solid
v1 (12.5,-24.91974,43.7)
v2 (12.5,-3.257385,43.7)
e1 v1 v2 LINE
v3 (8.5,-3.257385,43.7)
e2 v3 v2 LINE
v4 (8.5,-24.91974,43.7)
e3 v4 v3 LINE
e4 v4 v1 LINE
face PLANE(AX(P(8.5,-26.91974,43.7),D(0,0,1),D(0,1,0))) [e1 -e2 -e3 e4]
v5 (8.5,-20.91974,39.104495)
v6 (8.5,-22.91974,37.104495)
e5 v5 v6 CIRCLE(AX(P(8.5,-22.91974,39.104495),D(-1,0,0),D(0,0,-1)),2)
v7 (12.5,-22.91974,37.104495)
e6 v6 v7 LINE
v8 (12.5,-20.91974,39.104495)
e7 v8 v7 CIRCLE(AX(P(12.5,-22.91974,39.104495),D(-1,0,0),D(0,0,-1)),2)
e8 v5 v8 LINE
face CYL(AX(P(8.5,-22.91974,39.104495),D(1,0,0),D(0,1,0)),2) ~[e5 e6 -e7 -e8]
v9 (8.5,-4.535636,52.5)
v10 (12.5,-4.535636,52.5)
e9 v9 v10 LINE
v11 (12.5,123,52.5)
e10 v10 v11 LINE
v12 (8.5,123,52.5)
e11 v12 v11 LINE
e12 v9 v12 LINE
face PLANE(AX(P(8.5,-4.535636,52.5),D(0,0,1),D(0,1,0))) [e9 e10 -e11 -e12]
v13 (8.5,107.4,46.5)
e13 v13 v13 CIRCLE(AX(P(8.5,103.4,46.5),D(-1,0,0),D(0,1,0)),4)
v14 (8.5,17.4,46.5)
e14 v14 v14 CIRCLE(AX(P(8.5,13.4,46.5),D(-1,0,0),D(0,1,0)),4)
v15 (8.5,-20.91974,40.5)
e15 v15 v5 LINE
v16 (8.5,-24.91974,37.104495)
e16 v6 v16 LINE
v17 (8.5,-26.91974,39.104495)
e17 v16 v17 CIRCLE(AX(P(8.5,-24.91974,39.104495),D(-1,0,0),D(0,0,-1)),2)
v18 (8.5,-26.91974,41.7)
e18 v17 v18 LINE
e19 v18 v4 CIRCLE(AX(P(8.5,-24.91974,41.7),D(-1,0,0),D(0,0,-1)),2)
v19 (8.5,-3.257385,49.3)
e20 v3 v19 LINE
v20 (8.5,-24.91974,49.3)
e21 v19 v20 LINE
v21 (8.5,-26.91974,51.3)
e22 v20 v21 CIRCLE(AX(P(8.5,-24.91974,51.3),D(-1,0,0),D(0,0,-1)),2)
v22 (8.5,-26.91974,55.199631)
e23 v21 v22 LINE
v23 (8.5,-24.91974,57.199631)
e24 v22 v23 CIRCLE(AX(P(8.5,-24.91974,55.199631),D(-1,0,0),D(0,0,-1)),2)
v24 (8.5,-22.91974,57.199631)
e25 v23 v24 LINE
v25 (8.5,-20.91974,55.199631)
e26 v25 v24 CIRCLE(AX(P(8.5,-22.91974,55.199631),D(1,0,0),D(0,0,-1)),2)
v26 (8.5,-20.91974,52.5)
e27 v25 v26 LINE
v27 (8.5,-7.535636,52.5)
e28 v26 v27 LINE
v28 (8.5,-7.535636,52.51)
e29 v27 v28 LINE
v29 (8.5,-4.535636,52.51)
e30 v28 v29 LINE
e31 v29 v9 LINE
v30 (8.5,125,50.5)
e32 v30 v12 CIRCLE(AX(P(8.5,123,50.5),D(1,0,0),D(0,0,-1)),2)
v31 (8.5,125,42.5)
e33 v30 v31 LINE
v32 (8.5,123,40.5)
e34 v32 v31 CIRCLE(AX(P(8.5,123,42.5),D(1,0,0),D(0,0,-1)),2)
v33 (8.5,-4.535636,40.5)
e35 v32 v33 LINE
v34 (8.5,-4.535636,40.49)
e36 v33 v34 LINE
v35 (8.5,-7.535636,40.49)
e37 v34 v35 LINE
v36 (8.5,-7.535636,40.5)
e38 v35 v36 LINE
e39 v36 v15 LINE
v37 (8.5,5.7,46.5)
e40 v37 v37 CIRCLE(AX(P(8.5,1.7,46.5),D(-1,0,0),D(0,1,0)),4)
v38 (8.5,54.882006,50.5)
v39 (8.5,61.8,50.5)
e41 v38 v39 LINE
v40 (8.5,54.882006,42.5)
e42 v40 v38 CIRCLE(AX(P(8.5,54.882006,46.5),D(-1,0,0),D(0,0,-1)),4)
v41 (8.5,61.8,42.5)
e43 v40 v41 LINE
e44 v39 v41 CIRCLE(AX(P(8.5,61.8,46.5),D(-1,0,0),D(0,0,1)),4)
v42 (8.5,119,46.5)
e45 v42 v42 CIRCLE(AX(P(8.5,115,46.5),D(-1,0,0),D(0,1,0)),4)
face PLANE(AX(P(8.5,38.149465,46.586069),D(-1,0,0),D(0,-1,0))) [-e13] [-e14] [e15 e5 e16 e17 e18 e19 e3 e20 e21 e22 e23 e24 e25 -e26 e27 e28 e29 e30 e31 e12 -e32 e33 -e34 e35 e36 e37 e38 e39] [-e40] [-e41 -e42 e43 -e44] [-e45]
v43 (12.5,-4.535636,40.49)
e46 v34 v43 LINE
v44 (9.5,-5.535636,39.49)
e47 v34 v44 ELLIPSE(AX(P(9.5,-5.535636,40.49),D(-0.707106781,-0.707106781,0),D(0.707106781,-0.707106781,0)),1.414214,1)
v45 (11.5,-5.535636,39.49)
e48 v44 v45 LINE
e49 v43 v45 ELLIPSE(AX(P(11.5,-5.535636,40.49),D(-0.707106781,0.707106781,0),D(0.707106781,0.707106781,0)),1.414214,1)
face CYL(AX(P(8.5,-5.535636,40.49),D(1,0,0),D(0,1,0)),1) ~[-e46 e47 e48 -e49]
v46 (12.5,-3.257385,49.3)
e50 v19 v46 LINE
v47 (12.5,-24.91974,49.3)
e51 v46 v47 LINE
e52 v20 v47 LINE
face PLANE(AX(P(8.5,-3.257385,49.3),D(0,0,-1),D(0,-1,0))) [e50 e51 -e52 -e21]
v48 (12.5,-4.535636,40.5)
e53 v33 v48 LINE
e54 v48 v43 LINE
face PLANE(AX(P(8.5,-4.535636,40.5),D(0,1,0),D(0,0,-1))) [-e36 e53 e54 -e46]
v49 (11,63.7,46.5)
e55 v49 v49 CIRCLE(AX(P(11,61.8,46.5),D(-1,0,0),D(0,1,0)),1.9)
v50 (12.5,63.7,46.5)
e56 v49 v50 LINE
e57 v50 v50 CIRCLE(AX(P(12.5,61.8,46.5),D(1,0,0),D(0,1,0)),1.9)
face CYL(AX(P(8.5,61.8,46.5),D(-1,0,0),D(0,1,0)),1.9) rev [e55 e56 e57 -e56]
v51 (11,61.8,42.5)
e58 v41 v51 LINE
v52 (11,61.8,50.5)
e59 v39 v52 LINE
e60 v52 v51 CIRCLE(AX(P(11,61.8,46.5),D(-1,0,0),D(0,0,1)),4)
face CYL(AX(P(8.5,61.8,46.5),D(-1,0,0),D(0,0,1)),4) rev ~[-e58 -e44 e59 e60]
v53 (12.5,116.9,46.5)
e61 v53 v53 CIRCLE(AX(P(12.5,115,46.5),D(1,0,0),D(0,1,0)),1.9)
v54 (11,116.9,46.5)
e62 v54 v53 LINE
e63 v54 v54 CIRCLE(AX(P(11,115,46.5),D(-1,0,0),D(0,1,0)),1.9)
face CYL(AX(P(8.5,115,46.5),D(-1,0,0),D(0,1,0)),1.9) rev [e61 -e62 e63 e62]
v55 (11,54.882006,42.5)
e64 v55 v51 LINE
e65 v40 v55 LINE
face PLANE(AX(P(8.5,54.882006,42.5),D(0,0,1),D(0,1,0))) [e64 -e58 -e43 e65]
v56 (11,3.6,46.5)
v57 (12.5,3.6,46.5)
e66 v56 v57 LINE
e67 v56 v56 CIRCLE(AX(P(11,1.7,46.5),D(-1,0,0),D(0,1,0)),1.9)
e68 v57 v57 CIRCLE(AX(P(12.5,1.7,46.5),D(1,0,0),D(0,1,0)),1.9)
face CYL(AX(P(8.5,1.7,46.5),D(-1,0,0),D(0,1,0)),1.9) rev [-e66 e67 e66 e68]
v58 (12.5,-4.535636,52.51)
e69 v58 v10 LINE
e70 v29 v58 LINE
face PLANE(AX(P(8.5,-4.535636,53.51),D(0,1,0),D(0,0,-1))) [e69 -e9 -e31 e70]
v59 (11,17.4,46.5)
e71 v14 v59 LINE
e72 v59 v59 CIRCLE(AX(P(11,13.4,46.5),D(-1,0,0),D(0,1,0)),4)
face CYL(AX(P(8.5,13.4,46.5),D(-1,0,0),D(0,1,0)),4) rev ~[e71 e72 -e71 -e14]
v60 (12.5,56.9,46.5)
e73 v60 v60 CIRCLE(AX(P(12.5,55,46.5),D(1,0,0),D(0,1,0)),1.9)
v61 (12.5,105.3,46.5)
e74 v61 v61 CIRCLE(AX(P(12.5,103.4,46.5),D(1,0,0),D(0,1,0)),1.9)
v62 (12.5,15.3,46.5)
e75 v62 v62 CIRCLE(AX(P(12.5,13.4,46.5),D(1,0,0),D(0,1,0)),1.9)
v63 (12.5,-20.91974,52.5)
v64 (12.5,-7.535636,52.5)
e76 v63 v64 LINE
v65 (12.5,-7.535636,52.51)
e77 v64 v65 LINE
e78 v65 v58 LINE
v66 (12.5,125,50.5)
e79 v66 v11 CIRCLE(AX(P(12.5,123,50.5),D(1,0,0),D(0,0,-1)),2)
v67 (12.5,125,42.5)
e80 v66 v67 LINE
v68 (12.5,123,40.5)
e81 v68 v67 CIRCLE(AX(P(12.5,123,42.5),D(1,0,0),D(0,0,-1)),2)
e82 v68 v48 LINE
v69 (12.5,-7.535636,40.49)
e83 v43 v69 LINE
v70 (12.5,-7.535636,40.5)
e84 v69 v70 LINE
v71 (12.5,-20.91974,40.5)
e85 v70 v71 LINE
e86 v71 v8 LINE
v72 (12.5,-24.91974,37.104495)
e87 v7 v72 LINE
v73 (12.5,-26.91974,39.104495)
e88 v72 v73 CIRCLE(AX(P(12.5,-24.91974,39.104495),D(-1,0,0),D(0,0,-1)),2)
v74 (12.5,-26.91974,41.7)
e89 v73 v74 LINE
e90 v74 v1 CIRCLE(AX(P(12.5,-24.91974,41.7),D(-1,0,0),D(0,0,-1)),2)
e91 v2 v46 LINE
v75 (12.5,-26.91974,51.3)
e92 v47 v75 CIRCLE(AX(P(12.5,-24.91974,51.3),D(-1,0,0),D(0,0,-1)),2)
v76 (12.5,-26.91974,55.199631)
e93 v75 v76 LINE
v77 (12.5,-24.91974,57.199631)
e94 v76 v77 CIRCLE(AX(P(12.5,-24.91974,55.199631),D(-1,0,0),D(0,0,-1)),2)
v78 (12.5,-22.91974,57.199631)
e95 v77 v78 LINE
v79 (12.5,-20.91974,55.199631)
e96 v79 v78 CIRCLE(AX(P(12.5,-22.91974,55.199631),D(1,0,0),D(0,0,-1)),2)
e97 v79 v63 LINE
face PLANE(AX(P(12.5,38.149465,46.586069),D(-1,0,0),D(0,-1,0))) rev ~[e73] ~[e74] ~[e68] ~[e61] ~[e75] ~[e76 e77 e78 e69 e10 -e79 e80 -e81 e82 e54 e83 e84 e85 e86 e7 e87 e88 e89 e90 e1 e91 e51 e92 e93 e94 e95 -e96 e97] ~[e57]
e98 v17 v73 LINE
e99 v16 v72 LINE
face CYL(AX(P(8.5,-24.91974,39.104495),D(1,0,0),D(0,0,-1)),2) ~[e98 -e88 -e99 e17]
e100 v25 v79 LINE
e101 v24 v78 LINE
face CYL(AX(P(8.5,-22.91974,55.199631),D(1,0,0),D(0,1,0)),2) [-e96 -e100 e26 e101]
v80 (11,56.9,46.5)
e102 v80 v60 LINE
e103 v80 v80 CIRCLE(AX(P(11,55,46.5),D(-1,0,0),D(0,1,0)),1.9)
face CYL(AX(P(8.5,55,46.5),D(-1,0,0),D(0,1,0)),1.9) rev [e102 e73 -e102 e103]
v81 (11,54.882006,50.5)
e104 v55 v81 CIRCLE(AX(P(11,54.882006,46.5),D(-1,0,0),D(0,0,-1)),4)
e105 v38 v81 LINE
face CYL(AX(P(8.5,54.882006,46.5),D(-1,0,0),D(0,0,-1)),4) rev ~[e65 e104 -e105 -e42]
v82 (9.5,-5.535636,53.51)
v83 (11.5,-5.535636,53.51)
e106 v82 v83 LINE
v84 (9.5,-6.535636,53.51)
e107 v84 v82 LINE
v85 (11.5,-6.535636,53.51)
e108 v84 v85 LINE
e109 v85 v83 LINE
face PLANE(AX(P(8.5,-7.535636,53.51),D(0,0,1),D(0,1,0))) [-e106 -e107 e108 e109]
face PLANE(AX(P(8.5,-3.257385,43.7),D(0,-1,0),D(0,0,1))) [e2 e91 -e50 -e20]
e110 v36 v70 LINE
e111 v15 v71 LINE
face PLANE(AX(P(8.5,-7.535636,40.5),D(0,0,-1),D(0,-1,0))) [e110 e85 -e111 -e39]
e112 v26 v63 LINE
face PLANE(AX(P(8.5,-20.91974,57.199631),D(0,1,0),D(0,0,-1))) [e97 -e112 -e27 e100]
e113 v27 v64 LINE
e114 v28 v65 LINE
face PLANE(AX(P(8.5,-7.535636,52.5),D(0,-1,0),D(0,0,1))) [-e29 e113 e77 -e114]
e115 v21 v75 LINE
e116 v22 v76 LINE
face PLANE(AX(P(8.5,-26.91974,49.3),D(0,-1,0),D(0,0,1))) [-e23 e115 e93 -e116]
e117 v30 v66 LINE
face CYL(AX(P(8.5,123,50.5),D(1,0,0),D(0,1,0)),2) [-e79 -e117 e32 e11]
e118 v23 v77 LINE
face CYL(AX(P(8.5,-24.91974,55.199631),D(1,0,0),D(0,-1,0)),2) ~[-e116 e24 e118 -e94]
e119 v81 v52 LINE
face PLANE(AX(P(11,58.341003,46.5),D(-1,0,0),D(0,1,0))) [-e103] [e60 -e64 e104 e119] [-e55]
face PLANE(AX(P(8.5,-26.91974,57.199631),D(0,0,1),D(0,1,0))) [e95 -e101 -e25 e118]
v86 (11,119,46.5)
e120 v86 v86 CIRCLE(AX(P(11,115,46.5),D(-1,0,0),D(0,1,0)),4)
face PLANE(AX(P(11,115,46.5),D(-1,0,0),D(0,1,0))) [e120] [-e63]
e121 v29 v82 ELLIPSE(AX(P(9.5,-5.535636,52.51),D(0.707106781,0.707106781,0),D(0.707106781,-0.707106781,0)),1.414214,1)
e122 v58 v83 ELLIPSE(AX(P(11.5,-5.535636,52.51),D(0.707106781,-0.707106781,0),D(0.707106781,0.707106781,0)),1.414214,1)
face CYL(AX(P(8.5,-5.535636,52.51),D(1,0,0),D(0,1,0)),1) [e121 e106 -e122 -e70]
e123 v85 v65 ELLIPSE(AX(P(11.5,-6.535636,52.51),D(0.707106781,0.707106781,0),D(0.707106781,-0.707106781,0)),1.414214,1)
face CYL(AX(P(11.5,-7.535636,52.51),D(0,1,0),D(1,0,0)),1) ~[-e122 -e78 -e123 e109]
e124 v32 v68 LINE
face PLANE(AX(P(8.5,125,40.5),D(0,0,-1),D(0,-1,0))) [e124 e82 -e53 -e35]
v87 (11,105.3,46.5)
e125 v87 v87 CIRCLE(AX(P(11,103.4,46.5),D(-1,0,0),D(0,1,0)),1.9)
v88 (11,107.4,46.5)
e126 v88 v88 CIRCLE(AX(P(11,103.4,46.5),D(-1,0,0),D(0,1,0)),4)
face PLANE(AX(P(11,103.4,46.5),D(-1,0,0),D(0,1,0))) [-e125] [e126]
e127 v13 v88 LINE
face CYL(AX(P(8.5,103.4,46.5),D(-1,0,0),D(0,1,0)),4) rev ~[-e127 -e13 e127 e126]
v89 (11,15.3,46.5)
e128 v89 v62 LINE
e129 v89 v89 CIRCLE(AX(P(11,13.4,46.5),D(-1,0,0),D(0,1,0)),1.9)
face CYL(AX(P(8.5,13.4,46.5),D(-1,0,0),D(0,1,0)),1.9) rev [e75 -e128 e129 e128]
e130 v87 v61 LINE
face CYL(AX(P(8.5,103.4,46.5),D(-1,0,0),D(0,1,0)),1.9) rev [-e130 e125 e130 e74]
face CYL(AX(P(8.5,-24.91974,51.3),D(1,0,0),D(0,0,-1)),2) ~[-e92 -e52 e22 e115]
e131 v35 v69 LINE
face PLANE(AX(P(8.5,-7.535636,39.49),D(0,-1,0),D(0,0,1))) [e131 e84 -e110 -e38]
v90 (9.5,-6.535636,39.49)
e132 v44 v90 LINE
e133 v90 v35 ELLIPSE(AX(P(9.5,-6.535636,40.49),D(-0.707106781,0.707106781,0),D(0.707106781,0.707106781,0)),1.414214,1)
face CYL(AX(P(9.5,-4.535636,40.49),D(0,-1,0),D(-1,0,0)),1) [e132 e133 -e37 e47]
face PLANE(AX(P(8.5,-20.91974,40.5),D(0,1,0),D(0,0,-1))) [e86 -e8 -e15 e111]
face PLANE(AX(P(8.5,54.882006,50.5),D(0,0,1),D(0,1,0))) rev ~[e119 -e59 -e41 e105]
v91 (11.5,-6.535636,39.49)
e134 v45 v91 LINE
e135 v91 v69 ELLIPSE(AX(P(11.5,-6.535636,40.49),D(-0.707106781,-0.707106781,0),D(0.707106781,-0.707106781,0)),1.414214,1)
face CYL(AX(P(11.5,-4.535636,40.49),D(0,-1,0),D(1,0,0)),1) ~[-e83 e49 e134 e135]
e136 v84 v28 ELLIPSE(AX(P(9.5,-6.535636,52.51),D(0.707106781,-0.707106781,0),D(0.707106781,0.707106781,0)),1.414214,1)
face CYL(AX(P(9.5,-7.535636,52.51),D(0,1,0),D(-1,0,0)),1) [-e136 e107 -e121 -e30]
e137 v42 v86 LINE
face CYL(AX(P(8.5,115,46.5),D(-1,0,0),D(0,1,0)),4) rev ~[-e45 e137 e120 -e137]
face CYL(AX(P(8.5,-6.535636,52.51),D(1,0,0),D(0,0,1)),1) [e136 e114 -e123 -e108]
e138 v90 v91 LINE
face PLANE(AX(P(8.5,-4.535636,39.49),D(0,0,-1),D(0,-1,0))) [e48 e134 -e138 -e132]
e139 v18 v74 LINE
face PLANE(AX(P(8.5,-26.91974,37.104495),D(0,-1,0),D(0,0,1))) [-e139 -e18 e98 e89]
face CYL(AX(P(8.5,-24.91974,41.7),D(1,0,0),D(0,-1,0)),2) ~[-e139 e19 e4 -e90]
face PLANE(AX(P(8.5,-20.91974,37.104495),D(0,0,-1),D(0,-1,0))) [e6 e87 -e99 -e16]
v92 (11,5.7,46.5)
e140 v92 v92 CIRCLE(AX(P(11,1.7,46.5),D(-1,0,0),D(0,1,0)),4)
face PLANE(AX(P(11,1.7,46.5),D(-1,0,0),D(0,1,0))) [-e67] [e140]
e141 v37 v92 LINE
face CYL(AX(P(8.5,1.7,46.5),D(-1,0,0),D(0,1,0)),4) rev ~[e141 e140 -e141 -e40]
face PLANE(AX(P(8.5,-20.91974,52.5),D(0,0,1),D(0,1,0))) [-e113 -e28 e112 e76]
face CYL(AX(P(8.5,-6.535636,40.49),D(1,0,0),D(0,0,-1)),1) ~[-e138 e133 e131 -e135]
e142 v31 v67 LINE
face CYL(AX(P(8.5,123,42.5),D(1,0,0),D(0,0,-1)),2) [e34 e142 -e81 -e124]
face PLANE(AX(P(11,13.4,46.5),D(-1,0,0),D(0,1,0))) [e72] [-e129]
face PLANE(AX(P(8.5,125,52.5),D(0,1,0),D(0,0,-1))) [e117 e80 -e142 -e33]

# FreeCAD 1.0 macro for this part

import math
import FreeCAD as App
import Part
import Sketcher

V = App.Vector


def edges_at(feature, points):
    """Names of the edges that pass closest to the given points."""
    edges = feature.Shape.Edges
    near = lambda p: min(range(len(edges)), key=lambda i: edges[i].distToShape(Part.Vertex(*p))[0])
    return sorted({f"Edge{near(p) + 1}" for p in points})

doc = App.newDocument("Part")
body = doc.addObject("PartDesign::Body", "Body")

# Sketch on XZ plane
sketch1 = body.newObject("Sketcher::SketchObject", "Sketch")
sketch1.AttachmentSupport = (doc.getObject("XZ_Plane"), [""])
sketch1.MapMode = "FlatFace"
sketch1.addGeometry([
    Part.LineSegment(V(-125.5, 0, 0), V(4, 0, 0)),  # 0
    Part.LineSegment(V(4, 0, 0), V(4, 12, 0)),  # 1
    Part.LineSegment(V(4, 12, 0), V(-125.5, 12, 0)),  # 2
    Part.LineSegment(V(-125.5, 12, 0), V(-125.5, 13, 0)),  # 3
    Part.LineSegment(V(-125.5, 13, 0), V(-128.5, 13, 0)),  # 4
    Part.LineSegment(V(-128.5, 13, 0), V(-128.5, 12, 0)),  # 5
    Part.LineSegment(V(-128.5, 12, 0), V(-141.9, 12, 0)),  # 6
    Part.LineSegment(V(-141.9, 12, 0), V(-141.9, 16.7, 0)),  # 7
    Part.LineSegment(V(-141.9, 16.7, 0), V(-147.9, 16.7, 0)),  # 8
    Part.LineSegment(V(-147.9, 16.7, 0), V(-147.9, 8.8, 0)),  # 9
    Part.LineSegment(V(-147.9, 8.8, 0), V(-124.3, 8.8, 0)),  # 10
    Part.LineSegment(V(-124.3, 8.8, 0), V(-124.3, 3.2, 0)),  # 11
    Part.LineSegment(V(-124.3, 3.2, 0), V(-147.9, 3.2, 0)),  # 12
    Part.LineSegment(V(-147.9, 3.2, 0), V(-147.9, -3.4, 0)),  # 13
    Part.LineSegment(V(-147.9, -3.4, 0), V(-141.9, -3.4, 0)),  # 14
    Part.LineSegment(V(-141.9, -3.4, 0), V(-141.9, 0, 0)),  # 15
    Part.LineSegment(V(-141.9, 0, 0), V(-128.5, 0, 0)),  # 16
    Part.LineSegment(V(-128.5, 0, 0), V(-128.5, -1, 0)),  # 17
    Part.LineSegment(V(-128.5, -1, 0), V(-125.5, -1, 0)),  # 18
    Part.LineSegment(V(-125.5, -1, 0), V(-125.5, 0, 0)),  # 19
    Part.Circle(V(-6, 6, 0), V(0, 0, 1), 1.9),  # 20
    Part.Circle(V(-17.6, 6, 0), V(0, 0, 1), 1.9),  # 21
    Part.Circle(V(-59.2, 6, 0), V(0, 0, 1), 1.9),  # 22
    Part.Circle(V(-66, 6, 0), V(0, 0, 1), 1.9),  # 23
    Part.Circle(V(-107.6, 6, 0), V(0, 0, 1), 1.9),  # 24
    Part.Circle(V(-119.3, 6, 0), V(0, 0, 1), 1.9),  # 25
], False)
sketch1.addConstraint([
    Sketcher.Constraint("Coincident", 0, 2, 1, 1),
    Sketcher.Constraint("Coincident", 1, 2, 2, 1),
    Sketcher.Constraint("Coincident", 2, 2, 3, 1),
    Sketcher.Constraint("Coincident", 3, 2, 4, 1),
    Sketcher.Constraint("Coincident", 4, 2, 5, 1),
    Sketcher.Constraint("Coincident", 5, 2, 6, 1),
    Sketcher.Constraint("Coincident", 6, 2, 7, 1),
    Sketcher.Constraint("Coincident", 7, 2, 8, 1),
    Sketcher.Constraint("Coincident", 8, 2, 9, 1),
    Sketcher.Constraint("Coincident", 9, 2, 10, 1),
    Sketcher.Constraint("Coincident", 10, 2, 11, 1),
    Sketcher.Constraint("Coincident", 11, 2, 12, 1),
    Sketcher.Constraint("Coincident", 12, 2, 13, 1),
    Sketcher.Constraint("Coincident", 13, 2, 14, 1),
    Sketcher.Constraint("Coincident", 14, 2, 15, 1),
    Sketcher.Constraint("Coincident", 15, 2, 16, 1),
    Sketcher.Constraint("Coincident", 16, 2, 17, 1),
    Sketcher.Constraint("Coincident", 17, 2, 18, 1),
    Sketcher.Constraint("Coincident", 18, 2, 19, 1),
    Sketcher.Constraint("Coincident", 19, 2, 0, 1),
    Sketcher.Constraint("Horizontal", 0),
    Sketcher.Constraint("Vertical", 1),
    Sketcher.Constraint("Horizontal", 2),
    Sketcher.Constraint("Vertical", 3),
    Sketcher.Constraint("Horizontal", 4),
    Sketcher.Constraint("Vertical", 5),
    Sketcher.Constraint("Horizontal", 6),
    Sketcher.Constraint("Vertical", 7),
    Sketcher.Constraint("Horizontal", 8),
    Sketcher.Constraint("Vertical", 9),
    Sketcher.Constraint("Horizontal", 10),
    Sketcher.Constraint("Vertical", 11),
    Sketcher.Constraint("Horizontal", 12),
    Sketcher.Constraint("Vertical", 13),
    Sketcher.Constraint("Horizontal", 14),
    Sketcher.Constraint("Vertical", 15),
    Sketcher.Constraint("Horizontal", 16),
    Sketcher.Constraint("Vertical", 17),
    Sketcher.Constraint("Horizontal", 18),
    Sketcher.Constraint("Vertical", 19),
    Sketcher.Constraint("Equal", 20, 21),
    Sketcher.Constraint("Equal", 21, 22),
    Sketcher.Constraint("Equal", 22, 23),
    Sketcher.Constraint("Equal", 23, 24),
    Sketcher.Constraint("Equal", 24, 25),
    Sketcher.Constraint("PointOnObject", 0, 2, -1),
    Sketcher.Constraint("PointOnObject", 15, 2, -1),
    Sketcher.Constraint("Horizontal", 20, 3, 21, 3),
    Sketcher.Constraint("Horizontal", 21, 3, 22, 3),
    Sketcher.Constraint("Horizontal", 22, 3, 23, 3),
    Sketcher.Constraint("Horizontal", 23, 3, 24, 3),
    Sketcher.Constraint("Horizontal", 24, 3, 25, 3),
    Sketcher.Constraint("Horizontal", 2, 2, 5, 2),
    Sketcher.Constraint("Vertical", 9, 2, 12, 2),
    Sketcher.Constraint("Vertical", 7, 2, 14, 2),
    Sketcher.Constraint("Vertical", 5, 2, 16, 2),
    Sketcher.Constraint("Vertical", 3, 2, 18, 2),
    Sketcher.Constraint("Equal", 5, 17),
    Sketcher.Constraint("Diameter", 20, 3.8),
    Sketcher.Constraint("DistanceX", 4, 2, 4, 1, 3.0),
    Sketcher.Constraint("DistanceX", 8, 2, 8, 1, 6.0),
    Sketcher.Constraint("DistanceY", 1, 1, 1, 2, 12.0),
    Sketcher.Constraint("DistanceY", 11, 2, 11, 1, 5.6),
    Sketcher.Constraint("DistanceX", 20, 3, -1, 1, 6.0),
    Sketcher.Constraint("DistanceY", -1, 1, 20, 3, 6.0),
    Sketcher.Constraint("DistanceX", 23, 3, -1, 1, 66.0),
    Sketcher.Constraint("DistanceX", -1, 1, 0, 2, 4.0),
    Sketcher.Constraint("DistanceX", 24, 3, 21, 3, 90.0),
    Sketcher.Constraint("DistanceY", 3, 1, 3, 2, 1.01),
    Sketcher.Constraint("DistanceX", 21, 3, -1, 1, 17.6),
    Sketcher.Constraint("DistanceX", 22, 3, -1, 1, 59.2),
    Sketcher.Constraint("DistanceX", 25, 3, -1, 1, 119.3),
    Sketcher.Constraint("DistanceY", -1, 1, 9, 2, 8.8),
    Sketcher.Constraint("DistanceY", 7, 1, 7, 2, 4.699631),
    Sketcher.Constraint("DistanceX", 0, 1, 0, 2, 129.535636),
    Sketcher.Constraint("DistanceX", 6, 2, 6, 1, 13.384104),
    Sketcher.Constraint("DistanceX", 10, 1, 10, 2, 23.662355),
    Sketcher.Constraint("DistanceY", 13, 2, 13, 1, 6.595505),
])
pad1 = body.newObject("PartDesign::Pad", "Pad")
pad1.Profile = sketch1
pad1.Length = 4

# Sketch on XZ plane
sketch2 = body.newObject("Sketcher::SketchObject", "Sketch001")
sketch2.AttachmentSupport = (doc.getObject("XZ_Plane"), [""])
sketch2.MapMode = "FlatFace"
sketch2.addGeometry([
    Part.Circle(V(-107.6, 6, 0), V(0, 0, 1), 4),  # 0
    Part.Circle(V(-6, 6, 0), V(0, 0, 1), 4),  # 1
    Part.Circle(V(-17.6, 6, 0), V(0, 0, 1), 4),  # 2
    Part.Circle(V(-119.3, 6, 0), V(0, 0, 1), 4),  # 3
    Part.ArcOfCircle(Part.Circle(V(-66.1, 6, 0), V(0, 0, 1), 4), math.radians(90), math.radians(270)),  # 4
    Part.LineSegment(V(-66.1, 10, 0), V(-59.2, 10, 0)),  # 5
    Part.ArcOfCircle(Part.Circle(V(-59.2, 6, 0), V(0, 0, 1), 4), math.radians(-90), math.radians(90)),  # 6
    Part.LineSegment(V(-59.2, 2, 0), V(-66.1, 2, 0)),  # 7
], False)
sketch2.addConstraint([
    Sketcher.Constraint("Tangent", 4, 1, 5, 1),
    Sketcher.Constraint("Tangent", 5, 2, 6, 2),
    Sketcher.Constraint("Tangent", 6, 1, 7, 1),
    Sketcher.Constraint("Tangent", 7, 2, 4, 2),
    Sketcher.Constraint("Horizontal", 5),
    Sketcher.Constraint("Horizontal", 7),
    Sketcher.Constraint("Equal", 0, 1),
    Sketcher.Constraint("Equal", 1, 2),
    Sketcher.Constraint("Equal", 2, 3),
    Sketcher.Constraint("Equal", 3, 4),
    Sketcher.Constraint("Horizontal", 0, 3, 1, 3),
    Sketcher.Constraint("Horizontal", 1, 3, 2, 3),
    Sketcher.Constraint("Horizontal", 2, 3, 3, 3),
    Sketcher.Constraint("Horizontal", 3, 3, 4, 3),
    Sketcher.Constraint("Diameter", 0, 8.0),
    Sketcher.Constraint("DistanceY", -1, 1, 0, 3, 6.0),
    Sketcher.Constraint("DistanceX", 1, 3, -1, 1, 6.0),
    Sketcher.Constraint("DistanceX", 0, 3, 2, 3, 90.0),
    Sketcher.Constraint("DistanceX", 0, 3, -1, 1, 107.6),
    Sketcher.Constraint("DistanceX", 3, 3, -1, 1, 119.3),
    Sketcher.Constraint("DistanceX", 6, 3, -1, 1, 59.2),
    Sketcher.Constraint("DistanceX", 5, 1, 5, 2, 6.917994),
])
pocket1 = body.newObject("PartDesign::Pocket", "Pocket")
pocket1.Profile = sketch2
pocket1.Length = 2.5
pocket1.Reversed = True
doc.recompute()

fillet = body.newObject("PartDesign::Fillet", "Fillet")
fillet.Base = (pocket1, edges_at(pocket1, [(4, -2, 12), (4, -2, 0)]))
fillet.Radius = 2
doc.recompute()

fillet2 = body.newObject("PartDesign::Fillet", "Fillet001")
fillet2.Base = (fillet, edges_at(fillet, [
    (-125.536, -2, -1.01),
    (-128.536, -2, -1.01),
    (-127.036, 0, -1.01),
    (-127.036, -4, -1.01),
    (-128.536, -2, 13.01),
    (-125.536, -2, 13.01),
    (-127.036, 0, 13.01),
    (-127.036, -4, 13.01),
]))
fillet2.Radius = 1
doc.recompute()

fillet3 = body.newObject("PartDesign::Fillet", "Fillet002")
fillet3.Base = (fillet2, edges_at(fillet2, [
    (-141.92, -2, 16.7),
    (-147.92, -2, 16.7),
    (-147.92, -2, 8.8),
    (-147.92, -2, 3.2),
    (-147.92, -2, -3.396),
    (-141.92, -2, -3.396),
]))
fillet3.Radius = 2
body2 = doc.addObject("PartDesign::Body", "Body001")
doc.recompute()

body.Placement = App.Placement(V(8.5, 121, 40.5), App.Rotation(V(0, 0, -1), 270))
boolean = body2.newObject("PartDesign::Boolean", "Boolean")
boolean.Type = "Fuse"
boolean.addObjects([body])

doc.recompute()
